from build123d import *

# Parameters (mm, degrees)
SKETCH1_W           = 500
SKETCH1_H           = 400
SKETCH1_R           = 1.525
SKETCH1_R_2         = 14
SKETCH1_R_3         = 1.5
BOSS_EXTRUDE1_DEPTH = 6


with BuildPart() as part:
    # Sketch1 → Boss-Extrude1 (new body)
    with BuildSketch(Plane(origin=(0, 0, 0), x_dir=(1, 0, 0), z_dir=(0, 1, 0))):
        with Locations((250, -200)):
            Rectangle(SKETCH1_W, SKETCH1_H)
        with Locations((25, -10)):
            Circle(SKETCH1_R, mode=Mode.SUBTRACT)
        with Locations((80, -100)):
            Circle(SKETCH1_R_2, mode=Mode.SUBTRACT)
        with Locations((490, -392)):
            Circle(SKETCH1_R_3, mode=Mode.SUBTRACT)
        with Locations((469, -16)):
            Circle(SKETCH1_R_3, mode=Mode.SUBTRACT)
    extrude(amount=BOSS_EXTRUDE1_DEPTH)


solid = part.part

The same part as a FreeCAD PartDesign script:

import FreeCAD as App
import Part
import Sketcher

V = App.Vector

doc = App.newDocument("Part")
body = doc.addObject("PartDesign::Body", "Body")

# Sketch on XZ plane
sketch1 = body.newObject("Sketcher::SketchObject", "Sketch")
sketch1.AttachmentSupport = (doc.getObject("XZ_Plane"), [""])
sketch1.MapMode = "FlatFace"
sketch1.addGeometry([
    Part.LineSegment(V(0, 0, 0), V(0, 400, 0)),  # 0
    Part.LineSegment(V(0, 400, 0), V(500, 400, 0)),  # 1
    Part.LineSegment(V(500, 400, 0), V(500, 0, 0)),  # 2
    Part.LineSegment(V(500, 0, 0), V(0, 0, 0)),  # 3
    Part.Circle(V(490, 392, 0), V(0, 0, 1), 1.5),  # 4
    Part.Circle(V(80, 100, 0), V(0, 0, 1), 14),  # 5
    Part.Circle(V(25, 10, 0), V(0, 0, 1), 1.5),  # 6
    Part.Circle(V(469, 16, 0), V(0, 0, 1), 1.5),  # 7
], False)
sketch1.addConstraint([
    Sketcher.Constraint("Coincident", 0, 2, 1, 1),
    Sketcher.Constraint("Coincident", 1, 2, 2, 1),
    Sketcher.Constraint("Coincident", 2, 2, 3, 1),
    Sketcher.Constraint("Coincident", 3, 2, 0, 1),
    Sketcher.Constraint("Vertical", 0),
    Sketcher.Constraint("Horizontal", 1),
    Sketcher.Constraint("Vertical", 2),
    Sketcher.Constraint("Horizontal", 3),
    Sketcher.Constraint("Coincident", 3, 2, -1, 1),
    Sketcher.Constraint("Equal", 4, 7),
    Sketcher.Constraint("Diameter", 4, 3.0),
    Sketcher.Constraint("Diameter", 5, 28.0),
    Sketcher.Constraint("Diameter", 6, 3.05),
    Sketcher.Constraint("DistanceX", 1, 1, 1, 2, 500.0),
    Sketcher.Constraint("DistanceY", 0, 1, 0, 2, 400.0),
    Sketcher.Constraint("DistanceX", -1, 1, 4, 3, 490.0),
    Sketcher.Constraint("DistanceY", -1, 1, 4, 3, 392.0),
    Sketcher.Constraint("DistanceX", -1, 1, 5, 3, 80.0),
    Sketcher.Constraint("DistanceY", -1, 1, 5, 3, 100.0),
    Sketcher.Constraint("DistanceX", -1, 1, 6, 3, 25.0),
    Sketcher.Constraint("DistanceY", -1, 1, 6, 3, 10.0),
    Sketcher.Constraint("DistanceX", -1, 1, 7, 3, 469.0),
    Sketcher.Constraint("DistanceY", -1, 1, 7, 3, 16.0),
])
pad1 = body.newObject("PartDesign::Pad", "Pad")
pad1.Profile = sketch1
pad1.Length = 6
pad1.Reversed = True

doc.recompute()
